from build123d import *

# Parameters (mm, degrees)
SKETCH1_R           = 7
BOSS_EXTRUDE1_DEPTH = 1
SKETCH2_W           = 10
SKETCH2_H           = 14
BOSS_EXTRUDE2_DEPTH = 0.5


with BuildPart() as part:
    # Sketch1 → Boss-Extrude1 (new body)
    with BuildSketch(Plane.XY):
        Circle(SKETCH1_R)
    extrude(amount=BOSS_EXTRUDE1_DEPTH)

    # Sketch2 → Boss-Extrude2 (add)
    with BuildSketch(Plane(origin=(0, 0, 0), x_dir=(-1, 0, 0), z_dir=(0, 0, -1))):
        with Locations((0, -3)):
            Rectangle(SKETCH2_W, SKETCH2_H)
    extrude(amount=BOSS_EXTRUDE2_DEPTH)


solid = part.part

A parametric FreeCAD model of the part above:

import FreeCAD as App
import Part
import Sketcher


def add_polygon(sketch, points):
    """Adds a closed chain of lines whose ends are joined by coincident constraints."""
    first, n = sketch.GeometryCount, len(points)
    for a, b in zip(points, points[1:] + points[:1]):
        sketch.addGeometry(Part.LineSegment(App.Vector(*a, 0), App.Vector(*b, 0)), False)
    for i in range(n):
        sketch.addConstraint(Sketcher.Constraint("Coincident", first + i, 2, first + (i + 1) % n, 1))

doc = App.newDocument("Part")
body = doc.addObject("PartDesign::Body", "Body")

sketch1 = body.newObject("Sketcher::SketchObject", "Sketch")
sketch1.AttachmentSupport = (doc.getObject("XY_Plane"), [""])
sketch1.MapMode = "FlatFace"
sketch1.addGeometry(Part.Circle(App.Vector(0, 0, 0), App.Vector(0, 0, 1), 7), False)
sketch1.addConstraint(Sketcher.Constraint("Coincident", 0, 3, -1, 1))
sketch1.addConstraint(Sketcher.Constraint("Diameter", 0, 14.0))
pad1 = body.newObject("PartDesign::Pad", "Pad")
pad1.Profile = sketch1
pad1.Length = 1

sketch2 = body.newObject("Sketcher::SketchObject", "Sketch001")
sketch2.AttachmentSupport = (doc.getObject("XY_Plane"), [""])
sketch2.MapMode = "FlatFace"
add_polygon(sketch2, [(5, 4), (5, -10), (-5, -10), (-5, 4)])
sketch2.addConstraint(Sketcher.Constraint("Vertical", 0))
sketch2.addConstraint(Sketcher.Constraint("Horizontal", 1))
sketch2.addConstraint(Sketcher.Constraint("Vertical", 2))
sketch2.addConstraint(Sketcher.Constraint("Horizontal", 3))
sketch2.addConstraint(Sketcher.Constraint("DistanceX", 1, 2, 1, 1, 10.0))
sketch2.addConstraint(Sketcher.Constraint("DistanceY", 0, 2, 0, 1, 14.0))
sketch2.addConstraint(Sketcher.Constraint("DistanceX", -1, 1, 0, 2, 5.0))
sketch2.addConstraint(Sketcher.Constraint("DistanceY", 0, 2, -1, 1, 10.0))
pad2 = body.newObject("PartDesign::Pad", "Pad001")
pad2.Profile = sketch2
pad2.Length = 0.5
pad2.Reversed = True

doc.recompute()
